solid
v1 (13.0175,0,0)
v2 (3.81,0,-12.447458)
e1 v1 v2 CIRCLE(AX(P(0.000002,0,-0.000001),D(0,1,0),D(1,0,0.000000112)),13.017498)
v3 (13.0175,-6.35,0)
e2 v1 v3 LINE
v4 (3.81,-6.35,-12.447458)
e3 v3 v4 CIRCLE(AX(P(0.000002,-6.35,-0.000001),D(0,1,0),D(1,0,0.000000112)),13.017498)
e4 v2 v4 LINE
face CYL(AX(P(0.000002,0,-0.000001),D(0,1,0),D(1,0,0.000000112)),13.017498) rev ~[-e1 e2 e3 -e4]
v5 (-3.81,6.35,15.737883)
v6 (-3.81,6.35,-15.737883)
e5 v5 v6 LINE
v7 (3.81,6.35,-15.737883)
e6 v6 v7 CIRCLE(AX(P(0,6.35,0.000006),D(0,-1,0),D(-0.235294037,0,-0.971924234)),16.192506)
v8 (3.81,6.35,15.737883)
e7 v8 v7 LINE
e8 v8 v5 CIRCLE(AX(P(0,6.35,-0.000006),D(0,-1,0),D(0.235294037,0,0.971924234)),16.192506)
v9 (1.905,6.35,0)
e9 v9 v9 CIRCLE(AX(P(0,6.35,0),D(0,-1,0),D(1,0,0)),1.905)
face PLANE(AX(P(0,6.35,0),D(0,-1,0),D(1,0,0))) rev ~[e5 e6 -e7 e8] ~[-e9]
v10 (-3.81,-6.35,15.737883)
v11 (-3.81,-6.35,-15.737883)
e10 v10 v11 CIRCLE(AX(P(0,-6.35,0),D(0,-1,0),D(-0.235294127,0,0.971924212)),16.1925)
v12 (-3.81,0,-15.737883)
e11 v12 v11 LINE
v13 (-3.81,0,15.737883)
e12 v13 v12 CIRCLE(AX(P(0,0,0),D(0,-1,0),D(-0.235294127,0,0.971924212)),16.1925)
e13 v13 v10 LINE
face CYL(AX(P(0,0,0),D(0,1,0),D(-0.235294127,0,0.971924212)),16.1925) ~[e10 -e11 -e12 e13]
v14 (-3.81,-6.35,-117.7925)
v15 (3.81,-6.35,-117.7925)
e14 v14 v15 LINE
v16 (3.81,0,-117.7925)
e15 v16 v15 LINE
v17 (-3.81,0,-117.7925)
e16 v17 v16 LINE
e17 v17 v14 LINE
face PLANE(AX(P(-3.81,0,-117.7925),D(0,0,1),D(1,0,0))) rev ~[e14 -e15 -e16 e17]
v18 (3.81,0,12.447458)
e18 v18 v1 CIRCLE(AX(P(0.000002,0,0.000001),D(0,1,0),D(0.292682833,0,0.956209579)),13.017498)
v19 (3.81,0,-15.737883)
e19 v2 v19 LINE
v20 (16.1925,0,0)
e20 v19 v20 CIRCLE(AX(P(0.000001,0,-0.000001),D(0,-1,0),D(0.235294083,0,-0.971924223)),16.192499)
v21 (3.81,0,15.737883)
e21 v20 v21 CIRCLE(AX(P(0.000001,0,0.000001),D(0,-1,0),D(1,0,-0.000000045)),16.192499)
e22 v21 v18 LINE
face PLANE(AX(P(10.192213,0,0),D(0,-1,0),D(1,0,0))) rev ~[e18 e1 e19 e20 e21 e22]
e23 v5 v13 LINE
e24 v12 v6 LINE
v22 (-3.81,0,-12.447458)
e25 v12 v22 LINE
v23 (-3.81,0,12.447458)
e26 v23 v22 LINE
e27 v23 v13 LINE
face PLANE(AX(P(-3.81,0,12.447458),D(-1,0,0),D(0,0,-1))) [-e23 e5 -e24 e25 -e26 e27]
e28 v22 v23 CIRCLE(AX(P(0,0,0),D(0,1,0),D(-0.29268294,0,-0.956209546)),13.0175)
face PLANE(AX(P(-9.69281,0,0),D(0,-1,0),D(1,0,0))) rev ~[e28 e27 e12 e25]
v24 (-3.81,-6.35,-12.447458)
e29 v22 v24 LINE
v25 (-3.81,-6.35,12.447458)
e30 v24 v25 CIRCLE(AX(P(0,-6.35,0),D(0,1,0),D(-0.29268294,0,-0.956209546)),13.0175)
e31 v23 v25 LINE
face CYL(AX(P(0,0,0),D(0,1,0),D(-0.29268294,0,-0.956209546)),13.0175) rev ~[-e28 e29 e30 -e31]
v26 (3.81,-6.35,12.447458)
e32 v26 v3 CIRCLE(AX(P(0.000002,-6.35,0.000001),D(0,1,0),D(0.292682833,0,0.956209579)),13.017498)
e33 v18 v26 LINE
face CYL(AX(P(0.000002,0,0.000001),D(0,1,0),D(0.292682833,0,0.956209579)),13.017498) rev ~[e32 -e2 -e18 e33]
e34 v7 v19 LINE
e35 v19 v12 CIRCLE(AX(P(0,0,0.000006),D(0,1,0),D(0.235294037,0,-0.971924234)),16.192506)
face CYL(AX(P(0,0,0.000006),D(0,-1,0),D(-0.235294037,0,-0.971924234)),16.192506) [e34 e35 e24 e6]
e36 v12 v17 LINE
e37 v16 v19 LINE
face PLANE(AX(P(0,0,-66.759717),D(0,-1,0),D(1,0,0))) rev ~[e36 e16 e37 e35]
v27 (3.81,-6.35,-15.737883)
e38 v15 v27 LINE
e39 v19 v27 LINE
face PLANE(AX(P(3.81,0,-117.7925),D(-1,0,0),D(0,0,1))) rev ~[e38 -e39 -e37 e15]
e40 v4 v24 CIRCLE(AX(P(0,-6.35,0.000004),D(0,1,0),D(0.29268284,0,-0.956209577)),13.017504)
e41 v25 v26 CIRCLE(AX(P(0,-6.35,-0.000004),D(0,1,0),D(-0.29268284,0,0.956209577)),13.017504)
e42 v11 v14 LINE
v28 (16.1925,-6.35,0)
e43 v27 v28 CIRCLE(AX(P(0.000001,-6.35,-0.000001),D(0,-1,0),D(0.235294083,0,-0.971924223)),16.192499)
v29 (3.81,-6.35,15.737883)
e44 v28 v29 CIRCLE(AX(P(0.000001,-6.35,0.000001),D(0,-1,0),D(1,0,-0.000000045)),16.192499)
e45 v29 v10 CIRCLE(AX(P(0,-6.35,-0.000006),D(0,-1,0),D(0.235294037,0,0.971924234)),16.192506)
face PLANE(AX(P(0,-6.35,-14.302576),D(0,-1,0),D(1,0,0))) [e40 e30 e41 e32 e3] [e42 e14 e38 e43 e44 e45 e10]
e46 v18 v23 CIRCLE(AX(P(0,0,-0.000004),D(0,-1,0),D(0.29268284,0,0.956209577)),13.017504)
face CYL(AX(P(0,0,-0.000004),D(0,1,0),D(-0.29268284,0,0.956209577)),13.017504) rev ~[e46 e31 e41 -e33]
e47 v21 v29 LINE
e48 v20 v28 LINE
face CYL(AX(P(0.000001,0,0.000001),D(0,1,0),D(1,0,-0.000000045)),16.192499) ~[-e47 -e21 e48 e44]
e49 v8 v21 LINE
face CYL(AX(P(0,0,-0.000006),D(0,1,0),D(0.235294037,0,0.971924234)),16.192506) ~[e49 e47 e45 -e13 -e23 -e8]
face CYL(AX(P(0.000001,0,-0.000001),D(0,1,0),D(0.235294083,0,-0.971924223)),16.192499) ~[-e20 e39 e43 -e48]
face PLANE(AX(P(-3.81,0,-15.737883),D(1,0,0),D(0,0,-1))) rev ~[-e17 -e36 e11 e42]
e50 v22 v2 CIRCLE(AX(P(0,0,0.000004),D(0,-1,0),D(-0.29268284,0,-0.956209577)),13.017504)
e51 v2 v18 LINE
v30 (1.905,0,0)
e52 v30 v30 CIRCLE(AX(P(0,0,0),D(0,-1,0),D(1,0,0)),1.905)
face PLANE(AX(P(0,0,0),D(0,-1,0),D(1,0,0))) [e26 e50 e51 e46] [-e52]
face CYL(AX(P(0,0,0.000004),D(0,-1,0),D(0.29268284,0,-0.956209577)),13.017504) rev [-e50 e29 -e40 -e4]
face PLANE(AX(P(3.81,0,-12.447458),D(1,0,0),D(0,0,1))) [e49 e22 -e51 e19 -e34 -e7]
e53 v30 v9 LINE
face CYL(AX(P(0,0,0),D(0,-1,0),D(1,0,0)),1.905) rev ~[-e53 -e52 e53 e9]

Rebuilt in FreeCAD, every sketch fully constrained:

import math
import FreeCAD as App
import Part
import Sketcher

V = App.Vector
Q = App.Units.Quantity

doc = App.newDocument("Part")
body = doc.addObject("PartDesign::Body", "Body")

# Sketch on XZ plane
sketch1 = body.newObject("Sketcher::SketchObject", "Sketch")
sketch1.AttachmentSupport = (doc.getObject("XZ_Plane"), [""])
sketch1.MapMode = "FlatFace"
sketch1.addGeometry([
    Part.LineSegment(V(4, -118, 0), V(4, -16, 0)),
    Part.ArcOfCircle(Part.Circle(V(0, 0, 0), V(0, 0, 1), 16), math.radians(-104), math.radians(-76)),
    Part.LineSegment(V(-4, -16, 0), V(-4, -118, 0)),
    Part.LineSegment(V(-4, -118, 0), V(4, -118, 0)),
], False)
sketch1.addConstraint([
    Sketcher.Constraint("Coincident", 0, 2, 1, 2),
    Sketcher.Constraint("Coincident", 1, 1, 2, 1),
    Sketcher.Constraint("Coincident", 2, 2, 3, 1),
    Sketcher.Constraint("Coincident", 3, 2, 0, 1),
    Sketcher.Constraint("Vertical", 0),
    Sketcher.Constraint("Vertical", 2),
    Sketcher.Constraint("Horizontal", 3),
    Sketcher.Constraint("Coincident", 1, 3, -1, 1),
    Sketcher.Constraint("Horizontal", 0, 2, 1, 1),
    Sketcher.Constraint("DistanceX", 3, 1, 3, 2, Q("0.3 in")),
    Sketcher.Constraint("DistanceY", 2, 2, -1, 1, Q("4.6375 in")),
    Sketcher.Constraint("Radius", 1, 16.192506),
])
pad1 = body.newObject("PartDesign::Pad", "Pad")
pad1.Profile = sketch1
pad1.Length = Q("0.25 in")
body2 = doc.addObject("PartDesign::Body", "Body001")
body2.AllowCompound = True

# Sketch on XZ plane
sketch2 = body2.newObject("Sketcher::SketchObject", "Sketch001")
sketch2.AttachmentSupport = (doc.getObject("XZ_Plane001"), [""])
sketch2.MapMode = "FlatFace"
sketch2.addGeometry([
    Part.LineSegment(V(3.8, -12.4, 0), V(3.8, -15.7, 0)),  # 0
    Part.ArcOfCircle(Part.Circle(V(0, 0, 0), V(0, 0, 1), 16.2), math.radians(-76), math.radians(0)),  # 1
    Part.ArcOfCircle(Part.Circle(V(0, 0, 0), V(0, 0, 1), 16.2), math.radians(0), math.radians(76)),  # 2
    Part.LineSegment(V(3.8, 15.7, 0), V(3.8, 12.4, 0)),  # 3
    Part.ArcOfCircle(Part.Circle(V(0, 0, 0), V(0, 0, 1), 13), math.radians(0), math.radians(73)),  # 4
    Part.ArcOfCircle(Part.Circle(V(0, 0, 0), V(0, 0, 1), 13), math.radians(-73), math.radians(0)),  # 5
    Part.ArcOfCircle(Part.Circle(V(0, 0, 0), V(0, 0, 1), 16.2), math.radians(104), math.radians(256)),  # 6
    Part.LineSegment(V(-3.8, -15.7, 0), V(-3.8, -12.4, 0)),  # 7
    Part.ArcOfCircle(Part.Circle(V(0, 0, 0), V(0, 0, 1), 13), math.radians(107), math.radians(253)),  # 8
    Part.LineSegment(V(-3.8, 12.4, 0), V(-3.8, 15.7, 0)),  # 9
], False)
sketch2.addConstraint([
    Sketcher.Constraint("Coincident", 0, 2, 1, 1),
    Sketcher.Constraint("Tangent", 1, 2, 2, 1),
    Sketcher.Constraint("Coincident", 2, 2, 3, 1),
    Sketcher.Constraint("Coincident", 3, 2, 4, 2),
    Sketcher.Constraint("Tangent", 4, 1, 5, 2),
    Sketcher.Constraint("Coincident", 5, 1, 0, 1),
    Sketcher.Constraint("Coincident", 6, 2, 7, 1),
    Sketcher.Constraint("Coincident", 7, 2, 8, 2),
    Sketcher.Constraint("Coincident", 8, 1, 9, 1),
    Sketcher.Constraint("Coincident", 9, 2, 6, 1),
    Sketcher.Constraint("Vertical", 0),
    Sketcher.Constraint("Vertical", 3),
    Sketcher.Constraint("Vertical", 7),
    Sketcher.Constraint("Vertical", 9),
    Sketcher.Constraint("Coincident", 1, 3, -1, 1),
    Sketcher.Constraint("Coincident", 4, 3, -1, 1),
    Sketcher.Constraint("Coincident", 6, 3, -1, 1),
    Sketcher.Constraint("Coincident", 8, 3, -1, 1),
    Sketcher.Constraint("Equal", 1, 2),
    Sketcher.Constraint("Equal", 4, 5),
    Sketcher.Constraint("Equal", 2, 6),
    Sketcher.Constraint("Equal", 5, 8),
    Sketcher.Constraint("PointOnObject", 1, 2, -1),
    Sketcher.Constraint("PointOnObject", 4, 1, -1),
    Sketcher.Constraint("Horizontal", 0, 2, 6, 2),
    Sketcher.Constraint("Horizontal", 3, 2, 8, 1),
    Sketcher.Constraint("Vertical", 0, 2, 2, 2),
    Sketcher.Constraint("Radius", 1, Q("0.6375 in")),
    Sketcher.Constraint("Radius", 4, Q("0.5124999 in")),
    Sketcher.Constraint("DistanceX", 6, 2, 0, 2, Q("0.3 in")),
])
pad2 = body2.newObject("PartDesign::Pad", "Pad001")
pad2.Profile = sketch2
pad2.Length = Q("0.25 in")
body.AllowCompound = True
doc.recompute()

boolean = body.newObject("PartDesign::Boolean", "Boolean")
boolean.Type = "Fuse"
boolean.addObjects([body2])

# Sketch on XZ plane
sketch3 = body.newObject("Sketcher::SketchObject", "Sketch002")
sketch3.AttachmentSupport = (doc.getObject("XZ_Plane"), [""])
sketch3.MapMode = "FlatFace"
sketch3.addGeometry([
    Part.LineSegment(V(3.8, 12.4, 0), V(3.8, 15.7, 0)),  # 0
    Part.ArcOfCircle(Part.Circle(V(0, 0, 0), V(0, 0, 1), 16.2), math.radians(76), math.radians(104)),  # 1
    Part.LineSegment(V(-3.8, 15.7, 0), V(-3.8, 12.4, 0)),  # 2
    Part.ArcOfCircle(Part.Circle(V(0, 0, 0), V(0, 0, 1), 13), math.radians(73), math.radians(107)),  # 3
    Part.ArcOfCircle(Part.Circle(V(0, 0, 0), V(0, 0, 1), 16.2), math.radians(-104), math.radians(-76)),  # 4
    Part.LineSegment(V(3.8, -15.7, 0), V(3.8, -12.4, 0)),  # 5
    Part.ArcOfCircle(Part.Circle(V(0, 0, 0), V(0, 0, 1), 13), math.radians(-107), math.radians(-73)),  # 6
    Part.LineSegment(V(-3.8, -12.4, 0), V(-3.8, -15.7, 0)),  # 7
], False)
sketch3.addConstraint([
    Sketcher.Constraint("Coincident", 0, 2, 1, 1),
    Sketcher.Constraint("Coincident", 1, 2, 2, 1),
    Sketcher.Constraint("Coincident", 2, 2, 3, 2),
    Sketcher.Constraint("Coincident", 3, 1, 0, 1),
    Sketcher.Constraint("Coincident", 4, 2, 5, 1),
    Sketcher.Constraint("Coincident", 5, 2, 6, 2),
    Sketcher.Constraint("Coincident", 6, 1, 7, 1),
    Sketcher.Constraint("Coincident", 7, 2, 4, 1),
    Sketcher.Constraint("Vertical", 0),
    Sketcher.Constraint("Vertical", 2),
    Sketcher.Constraint("Vertical", 5),
    Sketcher.Constraint("Vertical", 7),
    Sketcher.Constraint("Coincident", 1, 3, -1, 1),
    Sketcher.Constraint("Coincident", 3, 3, -1, 1),
    Sketcher.Constraint("Coincident", 4, 3, -1, 1),
    Sketcher.Constraint("Coincident", 6, 3, -1, 1),
    Sketcher.Constraint("Equal", 1, 4),
    Sketcher.Constraint("Equal", 3, 6),
    Sketcher.Constraint("Horizontal", 0, 2, 1, 2),
    Sketcher.Constraint("Horizontal", 5, 2, 6, 1),
    Sketcher.Constraint("Vertical", 3, 1, 4, 2),
    Sketcher.Constraint("Radius", 3, Q("0.5125002 in")),
    Sketcher.Constraint("DistanceX", 1, 2, 0, 2, Q("0.3 in")),
    Sketcher.Constraint("Radius", 1, 16.192506),
])
pad3 = body.newObject("PartDesign::Pad", "Pad002")
pad3.Profile = sketch3
pad3.Length = Q("0.5 in")
pad3.Midplane = True

# Sketch on XZ plane
sketch4 = body.newObject("Sketcher::SketchObject", "Sketch003")
sketch4.AttachmentSupport = (doc.getObject("XZ_Plane"), [""])
sketch4.MapMode = "FlatFace"
sketch4.addGeometry([
    Part.ArcOfCircle(Part.Circle(V(0, 0, 0), V(0, 0, 1), 13), math.radians(-107), math.radians(-73)),  # 0
    Part.LineSegment(V(3.8, -12.4, 0), V(3.8, 12.4, 0)),  # 1
    Part.ArcOfCircle(Part.Circle(V(0, 0, 0), V(0, 0, 1), 13), math.radians(73), math.radians(107)),  # 2
    Part.LineSegment(V(-3.8, 12.4, 0), V(-3.8, -12.4, 0)),  # 3
    Part.Circle(V(0, 0, 0), V(0, 0, 1), 1.9),  # 4
], False)
sketch4.addConstraint([
    Sketcher.Constraint("Coincident", 0, 2, 1, 1),
    Sketcher.Constraint("Coincident", 1, 2, 2, 1),
    Sketcher.Constraint("Coincident", 2, 2, 3, 1),
    Sketcher.Constraint("Coincident", 3, 2, 0, 1),
    Sketcher.Constraint("Vertical", 1),
    Sketcher.Constraint("Vertical", 3),
    Sketcher.Constraint("Coincident", 0, 3, -1, 1),
    Sketcher.Constraint("Coincident", 2, 3, -1, 1),
    Sketcher.Constraint("Coincident", 4, 3, -1, 1),
    Sketcher.Constraint("Equal", 0, 2),
    Sketcher.Constraint("Horizontal", 1, 2, 2, 2),
    Sketcher.Constraint("Diameter", 4, Q("0.15 in")),
    Sketcher.Constraint("Radius", 0, Q("0.5125002 in")),
    Sketcher.Constraint("DistanceX", 2, 2, 1, 2, Q("0.3 in")),
])
pad4 = body.newObject("PartDesign::Pad", "Pad003")
pad4.Profile = sketch4
pad4.Length = Q("0.25 in")
pad4.Reversed = True

doc.recompute()
